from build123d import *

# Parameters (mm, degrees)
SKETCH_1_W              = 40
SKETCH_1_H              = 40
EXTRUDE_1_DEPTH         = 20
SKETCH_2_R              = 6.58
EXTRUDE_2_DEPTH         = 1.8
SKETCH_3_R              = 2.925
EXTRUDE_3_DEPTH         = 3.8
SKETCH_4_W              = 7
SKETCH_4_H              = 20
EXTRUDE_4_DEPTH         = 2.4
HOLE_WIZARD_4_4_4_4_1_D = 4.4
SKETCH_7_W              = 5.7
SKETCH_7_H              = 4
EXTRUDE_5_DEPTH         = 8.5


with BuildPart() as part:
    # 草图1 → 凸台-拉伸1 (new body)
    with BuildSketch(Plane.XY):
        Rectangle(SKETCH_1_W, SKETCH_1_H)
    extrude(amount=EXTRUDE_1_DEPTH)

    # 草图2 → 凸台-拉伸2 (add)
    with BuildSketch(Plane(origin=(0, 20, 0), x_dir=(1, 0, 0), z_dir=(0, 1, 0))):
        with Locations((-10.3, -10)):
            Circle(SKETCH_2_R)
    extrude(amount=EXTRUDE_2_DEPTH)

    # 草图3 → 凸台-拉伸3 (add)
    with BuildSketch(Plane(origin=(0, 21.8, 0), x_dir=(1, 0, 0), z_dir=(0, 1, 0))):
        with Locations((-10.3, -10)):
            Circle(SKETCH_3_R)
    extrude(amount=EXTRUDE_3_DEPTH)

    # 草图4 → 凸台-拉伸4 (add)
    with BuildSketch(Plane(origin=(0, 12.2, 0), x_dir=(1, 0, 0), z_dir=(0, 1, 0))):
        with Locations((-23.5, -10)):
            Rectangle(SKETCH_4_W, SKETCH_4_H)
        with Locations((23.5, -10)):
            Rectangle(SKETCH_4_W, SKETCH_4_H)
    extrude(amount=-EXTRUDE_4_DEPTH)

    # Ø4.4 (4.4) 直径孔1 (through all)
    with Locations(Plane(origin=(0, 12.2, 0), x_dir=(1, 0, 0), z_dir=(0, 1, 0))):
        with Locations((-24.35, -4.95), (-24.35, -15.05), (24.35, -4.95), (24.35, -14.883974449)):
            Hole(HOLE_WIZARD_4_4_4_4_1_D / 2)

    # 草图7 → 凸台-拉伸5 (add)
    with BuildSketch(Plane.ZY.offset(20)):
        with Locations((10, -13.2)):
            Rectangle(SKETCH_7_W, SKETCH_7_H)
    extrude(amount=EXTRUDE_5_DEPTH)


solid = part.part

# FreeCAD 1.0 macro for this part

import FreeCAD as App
import Part
import Sketcher


def add_polygon(sketch, points):
    """Adds a closed chain of lines whose ends are joined by coincident constraints."""
    first, n = sketch.GeometryCount, len(points)
    for a, b in zip(points, points[1:] + points[:1]):
        sketch.addGeometry(Part.LineSegment(App.Vector(*a, 0), App.Vector(*b, 0)), False)
    for i in range(n):
        sketch.addConstraint(Sketcher.Constraint("Coincident", first + i, 2, first + (i + 1) % n, 1))

doc = App.newDocument("Part")
params = doc.addObject("Spreadsheet::Sheet", "Params")
for row, (alias, value) in enumerate([
    ("sketch1_width", "40 mm"),
    ("pad1_length", "20 mm"),
    ("sketch2_diameter", "13.16 mm"),
    ("pad2_length", "1.8 mm"),
    ("sketch3_diameter", "5.85 mm"),
    ("pad3_length", "3.8 mm"),
    ("sketch4_width", "7 mm"),
    ("sketch4_height", "20 mm"),
    ("pad4_length", "2.4 mm"),
    ("sketch5_diameter", "4.4 mm"),
    ("hole_diameter", "4.4 mm"),
    ("sketch6_width", "4 mm"),
    ("sketch6_height", "5.7 mm"),
    ("pad5_length", "8.5 mm"),
], start=1):
    params.set(f"A{row}", alias)
    params.set(f"B{row}", "=" + value)
    params.setAlias(f"B{row}", alias)

body = doc.addObject("PartDesign::Body", "Body")

# Sketch on XY plane
sketch1 = doc.addObject("Sketcher::SketchObject", "Sketch")
body.addObject(sketch1)
sketch1.AttachmentSupport = (doc.XY_Plane, [""])
sketch1.MapMode = "FlatFace"
add_polygon(sketch1, [(-20, 20), (-20, -20), (20, -20), (20, 20)])  # lines 0-3
sketch1.addConstraint([
    Sketcher.Constraint("Vertical", 0),
    Sketcher.Constraint("Horizontal", 1),
    Sketcher.Constraint("Vertical", 2),
    Sketcher.Constraint("Horizontal", 3),
    Sketcher.Constraint("Symmetric", 0, 2, 2, 2, -1, 1),
    Sketcher.Constraint("Equal", 3, 0),
    Sketcher.Constraint("DistanceX", 1, 1, 1, 2, 40.0),
])
sketch1.setExpression("Constraints[10]", "Params.sketch1_width")
pad1 = doc.addObject("PartDesign::Pad", "Pad")
body.addObject(pad1)
pad1.Profile = sketch1
pad1.setExpression("Length", "Params.pad1_length")

# Sketch on XZ plane
sketch2 = doc.addObject("Sketcher::SketchObject", "Sketch001")
body.addObject(sketch2)
sketch2.AttachmentSupport = (doc.XZ_Plane, [""])
sketch2.MapMode = "FlatFace"
sketch2.AttachmentOffset = App.Placement(App.Vector(0, 0, -20), App.Rotation())
sketch2.addGeometry(Part.Circle(App.Vector(-10.3, 10, 0), App.Vector(0, 0, 1), 6.58), False)
sketch2.addConstraint([
    Sketcher.Constraint("Diameter", 0, 13.16),
    Sketcher.Constraint("DistanceY", -1, 1, 0, 3, 10.0),
    Sketcher.Constraint("DistanceX", 0, 3, -1, 1, 10.3),
])
sketch2.setExpression("Constraints[0]", "Params.sketch2_diameter")
pad2 = doc.addObject("PartDesign::Pad", "Pad001")
body.addObject(pad2)
pad2.Profile = sketch2
pad2.setExpression("Length", "Params.pad2_length")
pad2.Reversed = True

# Sketch on XZ plane
sketch3 = doc.addObject("Sketcher::SketchObject", "Sketch002")
body.addObject(sketch3)
sketch3.AttachmentSupport = (doc.XZ_Plane, [""])
sketch3.MapMode = "FlatFace"
sketch3.AttachmentOffset = App.Placement(App.Vector(0, 0, -21.8), App.Rotation())
sketch3.addGeometry(Part.Circle(App.Vector(-10.3, 10, 0), App.Vector(0, 0, 1), 2.925), False)
sketch3.addConstraint([
    Sketcher.Constraint("Diameter", 0, 5.85),
    Sketcher.Constraint("DistanceY", -1, 1, 0, 3, 10.0),
    Sketcher.Constraint("DistanceX", 0, 3, -1, 1, 10.3),
])
sketch3.setExpression("Constraints[0]", "Params.sketch3_diameter")
pad3 = doc.addObject("PartDesign::Pad", "Pad002")
body.addObject(pad3)
pad3.Profile = sketch3
pad3.setExpression("Length", "Params.pad3_length")
pad3.Reversed = True

# Sketch on XZ plane
sketch4 = doc.addObject("Sketcher::SketchObject", "Sketch003")
body.addObject(sketch4)
sketch4.AttachmentSupport = (doc.XZ_Plane, [""])
sketch4.MapMode = "FlatFace"
sketch4.AttachmentOffset = App.Placement(App.Vector(0, 0, -12.2), App.Rotation())
add_polygon(sketch4, [(-27, 0), (-27, 20), (-20, 20), (-20, 0)])  # lines 0-3
add_polygon(sketch4, [(20, 0), (20, 20), (27, 20), (27, 0)])  # lines 4-7
sketch4.addConstraint([
    Sketcher.Constraint("Vertical", 0),
    Sketcher.Constraint("Horizontal", 1),
    Sketcher.Constraint("Vertical", 2),
    Sketcher.Constraint("Horizontal", 3),
    Sketcher.Constraint("Vertical", 4),
    Sketcher.Constraint("Horizontal", 5),
    Sketcher.Constraint("Vertical", 6),
    Sketcher.Constraint("Horizontal", 7),
    Sketcher.Constraint("Symmetric", 3, 2, 6, 2, -1, 1),
    Sketcher.Constraint("Symmetric", 1, 2, 4, 2, -2),
    Sketcher.Constraint("PointOnObject", 2, 2, -1),
    Sketcher.Constraint("DistanceX", 1, 1, 1, 2, 7.0),
    Sketcher.Constraint("DistanceY", 0, 1, 0, 2, 20.0),
    Sketcher.Constraint("DistanceX", 0, 2, -1, 1, 27.0),
])
sketch4.setExpression("Constraints[19]", "Params.sketch4_width")
sketch4.setExpression("Constraints[20]", "Params.sketch4_height")
pad4 = doc.addObject("PartDesign::Pad", "Pad003")
body.addObject(pad4)
pad4.Profile = sketch4
pad4.setExpression("Length", "Params.pad4_length")

# Sketch on XZ plane
sketch5 = doc.addObject("Sketcher::SketchObject", "Sketch004")
body.addObject(sketch5)
sketch5.AttachmentSupport = (doc.XZ_Plane, [""])
sketch5.MapMode = "FlatFace"
sketch5.AttachmentOffset = App.Placement(App.Vector(0, 0, -12.2), App.Rotation())
sketch5.addGeometry([
    Part.Circle(App.Vector(-24.35, 4.95, 0), App.Vector(0, 0, 1), 2.2),
    Part.Circle(App.Vector(-24.35, 15.05, 0), App.Vector(0, 0, 1), 2.2),
    Part.Circle(App.Vector(24.35, 4.95, 0), App.Vector(0, 0, 1), 2.2),
    Part.Circle(App.Vector(24.35, 14.883974, 0), App.Vector(0, 0, 1), 2.2),
], False)
sketch5.addConstraint([
    Sketcher.Constraint("Equal", 0, 1),
    Sketcher.Constraint("Equal", 1, 2),
    Sketcher.Constraint("Equal", 2, 3),
    Sketcher.Constraint("Symmetric", 0, 3, 2, 3, -2),
    Sketcher.Constraint("Vertical", 0, 3, 1, 3),
    Sketcher.Constraint("Vertical", 2, 3, 3, 3),
    Sketcher.Constraint("Diameter", 0, 4.4),
    Sketcher.Constraint("DistanceY", 0, 3, 1, 3, 10.1),
    Sketcher.Constraint("DistanceX", 0, 3, 2, 3, 48.7),
    Sketcher.Constraint("DistanceY", -1, 1, 0, 3, 4.95),
    Sketcher.Constraint("DistanceY", -1, 1, 3, 3, 14.883974),
])
sketch5.setExpression("Constraints[6]", "Params.sketch5_diameter")
doc.recompute()
hole = doc.addObject("PartDesign::Hole", "Hole")
body.addObject(hole)
hole.Profile = sketch5
hole.ThreadType = "None"
hole.setExpression("Diameter", "Params.hole_diameter")
hole.DepthType = "ThroughAll"
hole.Reversed = True

# Sketch on YZ plane
sketch6 = doc.addObject("Sketcher::SketchObject", "Sketch005")
body.addObject(sketch6)
sketch6.AttachmentSupport = (doc.YZ_Plane, [""])
sketch6.MapMode = "FlatFace"
sketch6.AttachmentOffset = App.Placement(App.Vector(0, 0, -20), App.Rotation())
add_polygon(sketch6, [(-11.2, 7.15), (-15.2, 7.15), (-15.2, 12.85), (-11.2, 12.85)])  # lines 0-3
sketch6.addConstraint([
    Sketcher.Constraint("Horizontal", 0),
    Sketcher.Constraint("Vertical", 1),
    Sketcher.Constraint("Horizontal", 2),
    Sketcher.Constraint("Vertical", 3),
    Sketcher.Constraint("DistanceX", 0, 2, 0, 1, 4.0),
    Sketcher.Constraint("DistanceY", 1, 1, 1, 2, 5.7),
    Sketcher.Constraint("DistanceX", 0, 2, -1, 1, 15.2),
    Sketcher.Constraint("DistanceY", -1, 1, 0, 2, 7.15),
])
sketch6.setExpression("Constraints[8]", "Params.sketch6_width")
sketch6.setExpression("Constraints[9]", "Params.sketch6_height")
pad5 = doc.addObject("PartDesign::Pad", "Pad004")
body.addObject(pad5)
pad5.Profile = sketch6
pad5.setExpression("Length", "Params.pad5_length")
pad5.Reversed = True

doc.recompute()
